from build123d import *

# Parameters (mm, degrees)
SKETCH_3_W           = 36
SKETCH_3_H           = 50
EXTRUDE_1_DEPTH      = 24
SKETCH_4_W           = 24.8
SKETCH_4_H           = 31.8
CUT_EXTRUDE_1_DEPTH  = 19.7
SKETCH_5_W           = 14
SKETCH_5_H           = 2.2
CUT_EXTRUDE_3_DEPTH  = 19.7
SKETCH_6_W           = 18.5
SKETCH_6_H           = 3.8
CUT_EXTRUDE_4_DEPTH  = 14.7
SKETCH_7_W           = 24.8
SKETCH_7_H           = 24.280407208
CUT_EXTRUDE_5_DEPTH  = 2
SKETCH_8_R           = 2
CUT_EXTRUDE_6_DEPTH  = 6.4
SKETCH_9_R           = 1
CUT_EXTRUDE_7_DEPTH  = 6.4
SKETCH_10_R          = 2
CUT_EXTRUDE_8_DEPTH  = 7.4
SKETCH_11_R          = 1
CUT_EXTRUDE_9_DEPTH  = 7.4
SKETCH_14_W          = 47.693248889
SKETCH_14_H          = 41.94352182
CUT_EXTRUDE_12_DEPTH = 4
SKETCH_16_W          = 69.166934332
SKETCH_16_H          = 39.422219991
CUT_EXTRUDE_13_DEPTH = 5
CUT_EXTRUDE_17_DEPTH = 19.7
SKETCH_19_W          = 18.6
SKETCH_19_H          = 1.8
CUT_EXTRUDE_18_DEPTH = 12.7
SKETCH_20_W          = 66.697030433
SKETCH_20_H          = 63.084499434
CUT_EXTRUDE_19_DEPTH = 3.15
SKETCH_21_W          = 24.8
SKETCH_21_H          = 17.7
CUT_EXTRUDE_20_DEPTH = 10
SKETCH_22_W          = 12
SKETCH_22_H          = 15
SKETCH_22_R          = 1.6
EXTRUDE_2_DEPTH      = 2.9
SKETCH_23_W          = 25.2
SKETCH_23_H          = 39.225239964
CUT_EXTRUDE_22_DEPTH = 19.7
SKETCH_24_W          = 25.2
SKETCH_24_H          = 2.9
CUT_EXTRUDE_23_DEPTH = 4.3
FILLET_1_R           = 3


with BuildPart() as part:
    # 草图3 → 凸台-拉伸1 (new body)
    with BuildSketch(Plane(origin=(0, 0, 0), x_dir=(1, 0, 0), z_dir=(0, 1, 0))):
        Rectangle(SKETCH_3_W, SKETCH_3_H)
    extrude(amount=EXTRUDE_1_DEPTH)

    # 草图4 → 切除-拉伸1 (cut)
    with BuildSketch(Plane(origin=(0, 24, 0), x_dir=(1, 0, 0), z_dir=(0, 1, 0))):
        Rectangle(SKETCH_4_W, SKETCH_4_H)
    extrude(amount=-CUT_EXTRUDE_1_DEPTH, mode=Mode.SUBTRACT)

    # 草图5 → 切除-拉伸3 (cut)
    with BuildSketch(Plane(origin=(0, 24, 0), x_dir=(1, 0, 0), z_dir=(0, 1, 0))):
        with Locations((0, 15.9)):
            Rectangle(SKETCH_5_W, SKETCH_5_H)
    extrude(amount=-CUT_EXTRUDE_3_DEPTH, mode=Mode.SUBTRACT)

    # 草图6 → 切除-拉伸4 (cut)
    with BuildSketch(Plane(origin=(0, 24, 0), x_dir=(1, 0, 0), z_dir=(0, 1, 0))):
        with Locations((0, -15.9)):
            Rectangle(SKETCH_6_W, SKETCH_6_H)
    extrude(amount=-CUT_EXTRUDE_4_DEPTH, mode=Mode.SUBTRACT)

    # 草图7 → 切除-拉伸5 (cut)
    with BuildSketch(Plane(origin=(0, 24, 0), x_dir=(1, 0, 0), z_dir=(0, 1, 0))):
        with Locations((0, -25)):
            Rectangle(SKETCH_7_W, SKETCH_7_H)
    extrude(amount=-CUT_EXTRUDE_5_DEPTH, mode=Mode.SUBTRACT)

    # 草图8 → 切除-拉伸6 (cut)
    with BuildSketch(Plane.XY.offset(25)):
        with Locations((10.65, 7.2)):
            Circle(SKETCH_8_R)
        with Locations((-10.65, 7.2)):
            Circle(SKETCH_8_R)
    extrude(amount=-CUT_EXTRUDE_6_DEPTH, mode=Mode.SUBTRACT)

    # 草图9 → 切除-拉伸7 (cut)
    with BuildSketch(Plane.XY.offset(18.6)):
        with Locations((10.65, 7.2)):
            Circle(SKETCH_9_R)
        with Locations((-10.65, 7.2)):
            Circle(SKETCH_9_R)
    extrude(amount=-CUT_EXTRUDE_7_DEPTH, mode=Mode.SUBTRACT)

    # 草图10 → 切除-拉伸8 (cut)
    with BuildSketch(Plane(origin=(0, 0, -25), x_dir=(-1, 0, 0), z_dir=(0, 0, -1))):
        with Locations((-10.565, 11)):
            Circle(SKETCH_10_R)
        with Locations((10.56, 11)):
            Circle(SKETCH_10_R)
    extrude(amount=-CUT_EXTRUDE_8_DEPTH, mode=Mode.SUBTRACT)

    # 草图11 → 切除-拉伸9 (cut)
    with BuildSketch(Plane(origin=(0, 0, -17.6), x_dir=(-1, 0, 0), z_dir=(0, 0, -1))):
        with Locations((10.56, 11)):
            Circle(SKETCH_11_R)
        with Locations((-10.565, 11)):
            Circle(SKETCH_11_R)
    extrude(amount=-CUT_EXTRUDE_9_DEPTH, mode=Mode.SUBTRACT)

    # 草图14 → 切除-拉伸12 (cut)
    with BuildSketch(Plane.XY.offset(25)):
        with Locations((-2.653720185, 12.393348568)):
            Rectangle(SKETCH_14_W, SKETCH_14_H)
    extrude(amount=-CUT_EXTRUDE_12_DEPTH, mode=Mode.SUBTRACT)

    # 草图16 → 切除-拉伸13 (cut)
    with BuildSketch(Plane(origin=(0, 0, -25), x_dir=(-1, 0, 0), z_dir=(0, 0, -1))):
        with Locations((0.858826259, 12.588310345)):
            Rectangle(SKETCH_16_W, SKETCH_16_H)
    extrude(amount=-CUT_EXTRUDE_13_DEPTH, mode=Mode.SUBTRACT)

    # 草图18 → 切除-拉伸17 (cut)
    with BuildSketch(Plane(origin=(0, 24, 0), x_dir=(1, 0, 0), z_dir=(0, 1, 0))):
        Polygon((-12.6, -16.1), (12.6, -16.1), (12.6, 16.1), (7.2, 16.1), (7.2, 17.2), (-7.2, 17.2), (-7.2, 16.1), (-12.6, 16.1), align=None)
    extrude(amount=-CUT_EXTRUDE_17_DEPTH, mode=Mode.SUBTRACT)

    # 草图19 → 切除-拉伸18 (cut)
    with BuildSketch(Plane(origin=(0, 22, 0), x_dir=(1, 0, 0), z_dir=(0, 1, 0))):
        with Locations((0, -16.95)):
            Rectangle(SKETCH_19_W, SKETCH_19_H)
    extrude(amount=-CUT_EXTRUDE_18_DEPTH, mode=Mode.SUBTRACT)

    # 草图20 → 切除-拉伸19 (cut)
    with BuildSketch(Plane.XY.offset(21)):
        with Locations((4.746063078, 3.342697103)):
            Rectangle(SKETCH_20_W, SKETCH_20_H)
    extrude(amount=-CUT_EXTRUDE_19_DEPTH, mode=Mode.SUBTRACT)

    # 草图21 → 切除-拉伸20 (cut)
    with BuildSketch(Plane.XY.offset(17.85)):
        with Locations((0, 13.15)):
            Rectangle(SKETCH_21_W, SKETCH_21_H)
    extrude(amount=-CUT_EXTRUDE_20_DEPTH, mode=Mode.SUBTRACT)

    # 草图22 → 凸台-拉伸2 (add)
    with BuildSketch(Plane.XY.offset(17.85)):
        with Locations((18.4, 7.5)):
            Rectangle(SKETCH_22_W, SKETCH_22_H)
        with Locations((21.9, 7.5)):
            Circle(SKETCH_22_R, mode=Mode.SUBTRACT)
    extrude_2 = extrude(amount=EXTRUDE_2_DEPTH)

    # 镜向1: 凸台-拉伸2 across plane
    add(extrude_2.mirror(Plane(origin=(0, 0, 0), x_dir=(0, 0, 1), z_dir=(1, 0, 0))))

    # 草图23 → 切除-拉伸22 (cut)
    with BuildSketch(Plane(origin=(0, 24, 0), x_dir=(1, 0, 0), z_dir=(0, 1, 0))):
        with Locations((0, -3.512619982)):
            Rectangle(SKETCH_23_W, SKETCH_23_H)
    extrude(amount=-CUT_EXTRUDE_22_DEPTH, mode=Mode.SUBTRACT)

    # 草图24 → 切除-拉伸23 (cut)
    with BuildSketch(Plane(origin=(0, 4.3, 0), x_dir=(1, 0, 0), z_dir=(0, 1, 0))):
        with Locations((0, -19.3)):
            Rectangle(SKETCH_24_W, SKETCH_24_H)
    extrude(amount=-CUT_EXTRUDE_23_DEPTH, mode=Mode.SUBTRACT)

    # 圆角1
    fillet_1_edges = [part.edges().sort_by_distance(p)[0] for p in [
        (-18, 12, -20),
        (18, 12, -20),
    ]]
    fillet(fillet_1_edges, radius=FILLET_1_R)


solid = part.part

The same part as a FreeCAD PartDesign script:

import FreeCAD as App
import Part
import Sketcher

V = App.Vector


def edges_at(feature, points):
    """Names of the edges that pass closest to the given points."""
    edges = feature.Shape.Edges
    near = lambda p: min(range(len(edges)), key=lambda i: edges[i].distToShape(Part.Vertex(*p))[0])
    return sorted({f"Edge{near(p) + 1}" for p in points})

doc = App.newDocument("Part")
params = doc.addObject("Spreadsheet::Sheet", "Params")
for row, (alias, value) in enumerate([
    ("sketch1_width", "36 mm"),
    ("sketch1_height", "50 mm"),
    ("pad1_length", "24 mm"),
    ("sketch2_width", "24.8 mm"),
    ("sketch2_height", "31.8 mm"),
    ("pocket1_length", "19.7 mm"),
    ("sketch3_width", "14 mm"),
    ("sketch3_height", "2.2 mm"),
    ("pocket2_length", "19.7 mm"),
    ("sketch4_width", "18.5 mm"),
    ("sketch4_height", "3.8 mm"),
    ("pocket3_length", "14.7 mm"),
    ("sketch5_width", "24.8 mm"),
    ("pocket4_length", "2 mm"),
    ("sketch6_diameter", "4 mm"),
    ("pocket5_length", "6.4 mm"),
    ("sketch7_diameter", "2 mm"),
    ("pocket6_length", "6.4 mm"),
    ("sketch8_diameter", "4 mm"),
    ("pocket7_length", "7.4 mm"),
    ("sketch9_diameter", "2 mm"),
    ("pocket8_length", "7.4 mm"),
    ("pocket9_length", "4 mm"),
    ("pocket10_length", "5 mm"),
    ("sketch12_width", "25.2 mm"),
    ("sketch12_width2", "5.4 mm"),
    ("sketch12_height", "32.2 mm"),
    ("sketch12_height2", "1.1 mm"),
    ("pocket11_length", "19.7 mm"),
    ("sketch13_width", "18.6 mm"),
    ("sketch13_height", "1.8 mm"),
    ("pocket12_length", "12.7 mm"),
    ("pocket13_length", "3.15 mm"),
    ("sketch15_width", "24.8 mm"),
    ("sketch15_height", "17.7 mm"),
    ("pocket14_length", "10 mm"),
    ("sketch16_diameter", "3.2 mm"),
    ("sketch16_width", "12 mm"),
    ("sketch16_height", "15 mm"),
    ("pad2_length", "2.9 mm"),
    ("sketch17_width", "25.2 mm"),
    ("pocket15_length", "19.7 mm"),
    ("sketch18_width", "25.2 mm"),
    ("sketch18_height", "2.9 mm"),
    ("pocket16_length", "4.3 mm"),
    ("fillet_radius", "3 mm"),
], start=1):
    params.set(f"A{row}", alias)
    params.set(f"B{row}", "=" + value)
    params.setAlias(f"B{row}", alias)

body = doc.addObject("PartDesign::Body", "Body")

# Sketch on XZ plane
sketch1 = doc.addObject("Sketcher::SketchObject", "Sketch")
body.addObject(sketch1)
sketch1.AttachmentSupport = (doc.XZ_Plane, [""])
sketch1.MapMode = "FlatFace"
sketch1.addGeometry([
    Part.LineSegment(V(-18, -25, 0), V(-18, 25, 0)),
    Part.LineSegment(V(-18, 25, 0), V(18, 25, 0)),
    Part.LineSegment(V(18, 25, 0), V(18, -25, 0)),
    Part.LineSegment(V(18, -25, 0), V(-18, -25, 0)),
], False)
sketch1.addConstraint([
    Sketcher.Constraint("Coincident", 0, 2, 1, 1),
    Sketcher.Constraint("Coincident", 1, 2, 2, 1),
    Sketcher.Constraint("Coincident", 2, 2, 3, 1),
    Sketcher.Constraint("Coincident", 3, 2, 0, 1),
    Sketcher.Constraint("Vertical", 0),
    Sketcher.Constraint("Horizontal", 1),
    Sketcher.Constraint("Vertical", 2),
    Sketcher.Constraint("Horizontal", 3),
    Sketcher.Constraint("Symmetric", 0, 2, 2, 2, -1, 1),
    Sketcher.Constraint("DistanceX", 1, 1, 1, 2, 36.0),
    Sketcher.Constraint("DistanceY", 0, 1, 0, 2, 50.0),
])
sketch1.setExpression("Constraints[9]", "Params.sketch1_width")
sketch1.setExpression("Constraints[10]", "Params.sketch1_height")
pad1 = doc.addObject("PartDesign::Pad", "Pad")
body.addObject(pad1)
pad1.Profile = sketch1
pad1.setExpression("Length", "Params.pad1_length")
pad1.Reversed = True

# Sketch on XZ plane
sketch2 = doc.addObject("Sketcher::SketchObject", "Sketch001")
body.addObject(sketch2)
sketch2.AttachmentSupport = (doc.XZ_Plane, [""])
sketch2.MapMode = "FlatFace"
sketch2.AttachmentOffset = App.Placement(V(0, 0, -24), App.Rotation())
sketch2.addGeometry([
    Part.LineSegment(V(-12.4, -15.9, 0), V(-12.4, 15.9, 0)),
    Part.LineSegment(V(-12.4, 15.9, 0), V(12.4, 15.9, 0)),
    Part.LineSegment(V(12.4, 15.9, 0), V(12.4, -15.9, 0)),
    Part.LineSegment(V(12.4, -15.9, 0), V(-12.4, -15.9, 0)),
], False)
sketch2.addConstraint([
    Sketcher.Constraint("Coincident", 0, 2, 1, 1),
    Sketcher.Constraint("Coincident", 1, 2, 2, 1),
    Sketcher.Constraint("Coincident", 2, 2, 3, 1),
    Sketcher.Constraint("Coincident", 3, 2, 0, 1),
    Sketcher.Constraint("Vertical", 0),
    Sketcher.Constraint("Horizontal", 1),
    Sketcher.Constraint("Vertical", 2),
    Sketcher.Constraint("Horizontal", 3),
    Sketcher.Constraint("Symmetric", 0, 2, 2, 2, -1, 1),
    Sketcher.Constraint("DistanceX", 1, 1, 1, 2, 24.8),
    Sketcher.Constraint("DistanceY", 0, 1, 0, 2, 31.8),
])
sketch2.setExpression("Constraints[9]", "Params.sketch2_width")
sketch2.setExpression("Constraints[10]", "Params.sketch2_height")
pocket1 = doc.addObject("PartDesign::Pocket", "Pocket")
body.addObject(pocket1)
pocket1.Profile = sketch2
pocket1.setExpression("Length", "Params.pocket1_length")
pocket1.Reversed = True

# Sketch on XZ plane
sketch3 = doc.addObject("Sketcher::SketchObject", "Sketch002")
body.addObject(sketch3)
sketch3.AttachmentSupport = (doc.XZ_Plane, [""])
sketch3.MapMode = "FlatFace"
sketch3.AttachmentOffset = App.Placement(V(0, 0, -24), App.Rotation())
sketch3.addGeometry([
    Part.LineSegment(V(-7, -17, 0), V(-7, -14.8, 0)),
    Part.LineSegment(V(-7, -14.8, 0), V(7, -14.8, 0)),
    Part.LineSegment(V(7, -14.8, 0), V(7, -17, 0)),
    Part.LineSegment(V(7, -17, 0), V(-7, -17, 0)),
], False)
sketch3.addConstraint([
    Sketcher.Constraint("Coincident", 0, 2, 1, 1),
    Sketcher.Constraint("Coincident", 1, 2, 2, 1),
    Sketcher.Constraint("Coincident", 2, 2, 3, 1),
    Sketcher.Constraint("Coincident", 3, 2, 0, 1),
    Sketcher.Constraint("Vertical", 0),
    Sketcher.Constraint("Horizontal", 1),
    Sketcher.Constraint("Vertical", 2),
    Sketcher.Constraint("Horizontal", 3),
    Sketcher.Constraint("DistanceX", 1, 1, 1, 2, 14.0),
    Sketcher.Constraint("DistanceY", 0, 1, 0, 2, 2.2),
    Sketcher.Constraint("DistanceX", 0, 2, -1, 1, 7.0),
    Sketcher.Constraint("DistanceY", 2, 2, -1, 1, 17.0),
])
sketch3.setExpression("Constraints[8]", "Params.sketch3_width")
sketch3.setExpression("Constraints[9]", "Params.sketch3_height")
pocket2 = doc.addObject("PartDesign::Pocket", "Pocket001")
body.addObject(pocket2)
pocket2.Profile = sketch3
pocket2.setExpression("Length", "Params.pocket2_length")
pocket2.Reversed = True

# Sketch on XZ plane
sketch4 = doc.addObject("Sketcher::SketchObject", "Sketch003")
body.addObject(sketch4)
sketch4.AttachmentSupport = (doc.XZ_Plane, [""])
sketch4.MapMode = "FlatFace"
sketch4.AttachmentOffset = App.Placement(V(0, 0, -24), App.Rotation())
sketch4.addGeometry([
    Part.LineSegment(V(-9.25, 14, 0), V(-9.25, 17.8, 0)),
    Part.LineSegment(V(-9.25, 17.8, 0), V(9.25, 17.8, 0)),
    Part.LineSegment(V(9.25, 17.8, 0), V(9.25, 14, 0)),
    Part.LineSegment(V(9.25, 14, 0), V(-9.25, 14, 0)),
], False)
sketch4.addConstraint([
    Sketcher.Constraint("Coincident", 0, 2, 1, 1),
    Sketcher.Constraint("Coincident", 1, 2, 2, 1),
    Sketcher.Constraint("Coincident", 2, 2, 3, 1),
    Sketcher.Constraint("Coincident", 3, 2, 0, 1),
    Sketcher.Constraint("Vertical", 0),
    Sketcher.Constraint("Horizontal", 1),
    Sketcher.Constraint("Vertical", 2),
    Sketcher.Constraint("Horizontal", 3),
    Sketcher.Constraint("DistanceX", 1, 1, 1, 2, 18.5),
    Sketcher.Constraint("DistanceY", 0, 1, 0, 2, 3.8),
    Sketcher.Constraint("DistanceY", -1, 1, 2, 2, 14.0),
    Sketcher.Constraint("DistanceX", 0, 2, -1, 1, 9.25),
])
sketch4.setExpression("Constraints[8]", "Params.sketch4_width")
sketch4.setExpression("Constraints[9]", "Params.sketch4_height")
pocket3 = doc.addObject("PartDesign::Pocket", "Pocket002")
body.addObject(pocket3)
pocket3.Profile = sketch4
pocket3.setExpression("Length", "Params.pocket3_length")
pocket3.Reversed = True

# Sketch on XZ plane
sketch5 = doc.addObject("Sketcher::SketchObject", "Sketch004")
body.addObject(sketch5)
sketch5.AttachmentSupport = (doc.XZ_Plane, [""])
sketch5.MapMode = "FlatFace"
sketch5.AttachmentOffset = App.Placement(V(0, 0, -24), App.Rotation())
sketch5.addGeometry([
    Part.LineSegment(V(-12.4, 12.859796, 0), V(-12.4, 37.140204, 0)),
    Part.LineSegment(V(-12.4, 37.140204, 0), V(12.4, 37.140204, 0)),
    Part.LineSegment(V(12.4, 37.140204, 0), V(12.4, 12.859796, 0)),
    Part.LineSegment(V(12.4, 12.859796, 0), V(-12.4, 12.859796, 0)),
], False)
sketch5.addConstraint([
    Sketcher.Constraint("Coincident", 0, 2, 1, 1),
    Sketcher.Constraint("Coincident", 1, 2, 2, 1),
    Sketcher.Constraint("Coincident", 2, 2, 3, 1),
    Sketcher.Constraint("Coincident", 3, 2, 0, 1),
    Sketcher.Constraint("Vertical", 0),
    Sketcher.Constraint("Horizontal", 1),
    Sketcher.Constraint("Vertical", 2),
    Sketcher.Constraint("Horizontal", 3),
    Sketcher.Constraint("DistanceX", 1, 1, 1, 2, 24.8),
    Sketcher.Constraint("DistanceX", 0, 2, -1, 1, 12.4),
    Sketcher.Constraint("DistanceY", 0, 1, 0, 2, 24.280407),
    Sketcher.Constraint("DistanceY", -1, 1, 0, 2, 37.140204),
])
sketch5.setExpression("Constraints[8]", "Params.sketch5_width")
pocket4 = doc.addObject("PartDesign::Pocket", "Pocket003")
body.addObject(pocket4)
pocket4.Profile = sketch5
pocket4.setExpression("Length", "Params.pocket4_length")
pocket4.Reversed = True

# Sketch on XY plane
sketch6 = doc.addObject("Sketcher::SketchObject", "Sketch005")
body.addObject(sketch6)
sketch6.AttachmentSupport = (doc.XY_Plane, [""])
sketch6.MapMode = "FlatFace"
sketch6.AttachmentOffset = App.Placement(V(0, 0, 25), App.Rotation())
sketch6.addGeometry([
    Part.Circle(V(10.65, 7.2, 0), V(0, 0, 1), 2),
    Part.Circle(V(-10.65, 7.2, 0), V(0, 0, 1), 2),
], False)
sketch6.addConstraint([
    Sketcher.Constraint("Equal", 0, 1),
    Sketcher.Constraint("Symmetric", 0, 3, 1, 3, -2),
    Sketcher.Constraint("Diameter", 0, 4.0),
    Sketcher.Constraint("DistanceY", -1, 1, 0, 3, 7.2),
    Sketcher.Constraint("DistanceX", 1, 3, 0, 3, 21.3),
])
sketch6.setExpression("Constraints[2]", "Params.sketch6_diameter")
pocket5 = doc.addObject("PartDesign::Pocket", "Pocket004")
body.addObject(pocket5)
pocket5.Profile = sketch6
pocket5.setExpression("Length", "Params.pocket5_length")

# Sketch on XY plane
sketch7 = doc.addObject("Sketcher::SketchObject", "Sketch006")
body.addObject(sketch7)
sketch7.AttachmentSupport = (doc.XY_Plane, [""])
sketch7.MapMode = "FlatFace"
sketch7.AttachmentOffset = App.Placement(V(0, 0, 18.6), App.Rotation())
sketch7.addGeometry([
    Part.Circle(V(10.65, 7.2, 0), V(0, 0, 1), 1),
    Part.Circle(V(-10.65, 7.2, 0), V(0, 0, 1), 1),
], False)
sketch7.addConstraint([
    Sketcher.Constraint("Equal", 0, 1),
    Sketcher.Constraint("Symmetric", 0, 3, 1, 3, -2),
    Sketcher.Constraint("Diameter", 0, 2.0),
    Sketcher.Constraint("DistanceY", -1, 1, 0, 3, 7.2),
    Sketcher.Constraint("DistanceX", 1, 3, 0, 3, 21.3),
])
sketch7.setExpression("Constraints[2]", "Params.sketch7_diameter")
pocket6 = doc.addObject("PartDesign::Pocket", "Pocket005")
body.addObject(pocket6)
pocket6.Profile = sketch7
pocket6.setExpression("Length", "Params.pocket6_length")

# Sketch on XY plane
sketch8 = doc.addObject("Sketcher::SketchObject", "Sketch007")
body.addObject(sketch8)
sketch8.AttachmentSupport = (doc.XY_Plane, [""])
sketch8.MapMode = "FlatFace"
sketch8.AttachmentOffset = App.Placement(V(0, 0, -25), App.Rotation())
sketch8.addGeometry([
    Part.Circle(V(10.565, 11, 0), V(0, 0, 1), 2),
    Part.Circle(V(-10.56, 11, 0), V(0, 0, 1), 2),
], False)
sketch8.addConstraint([
    Sketcher.Constraint("Equal", 0, 1),
    Sketcher.Constraint("Horizontal", 0, 3, 1, 3),
    Sketcher.Constraint("Diameter", 0, 4.0),
    Sketcher.Constraint("DistanceY", -1, 1, 0, 3, 11.0),
    Sketcher.Constraint("DistanceX", 1, 3, -1, 1, 10.56),
    Sketcher.Constraint("DistanceX", -1, 1, 0, 3, 10.565),
])
sketch8.setExpression("Constraints[2]", "Params.sketch8_diameter")
pocket7 = doc.addObject("PartDesign::Pocket", "Pocket006")
body.addObject(pocket7)
pocket7.Profile = sketch8
pocket7.setExpression("Length", "Params.pocket7_length")
pocket7.Reversed = True

# Sketch on XY plane
sketch9 = doc.addObject("Sketcher::SketchObject", "Sketch008")
body.addObject(sketch9)
sketch9.AttachmentSupport = (doc.XY_Plane, [""])
sketch9.MapMode = "FlatFace"
sketch9.AttachmentOffset = App.Placement(V(0, 0, -17.6), App.Rotation())
sketch9.addGeometry([
    Part.Circle(V(-10.56, 11, 0), V(0, 0, 1), 1),
    Part.Circle(V(10.565, 11, 0), V(0, 0, 1), 1),
], False)
sketch9.addConstraint([
    Sketcher.Constraint("Equal", 0, 1),
    Sketcher.Constraint("Horizontal", 0, 3, 1, 3),
    Sketcher.Constraint("Diameter", 0, 2.0),
    Sketcher.Constraint("DistanceY", -1, 1, 0, 3, 11.0),
    Sketcher.Constraint("DistanceX", 0, 3, -1, 1, 10.56),
    Sketcher.Constraint("DistanceX", -1, 1, 1, 3, 10.565),
])
sketch9.setExpression("Constraints[2]", "Params.sketch9_diameter")
pocket8 = doc.addObject("PartDesign::Pocket", "Pocket007")
body.addObject(pocket8)
pocket8.Profile = sketch9
pocket8.setExpression("Length", "Params.pocket8_length")
pocket8.Reversed = True

# Sketch on XY plane
sketch10 = doc.addObject("Sketcher::SketchObject", "Sketch009")
body.addObject(sketch10)
sketch10.AttachmentSupport = (doc.XY_Plane, [""])
sketch10.MapMode = "FlatFace"
sketch10.AttachmentOffset = App.Placement(V(0, 0, 25), App.Rotation())
sketch10.addGeometry([
    Part.LineSegment(V(-26.500345, 33.365109, 0), V(-26.500345, -8.578412, 0)),
    Part.LineSegment(V(-26.500345, -8.578412, 0), V(21.192904, -8.578412, 0)),
    Part.LineSegment(V(21.192904, -8.578412, 0), V(21.192904, 33.365109, 0)),
    Part.LineSegment(V(21.192904, 33.365109, 0), V(-26.500345, 33.365109, 0)),
], False)
sketch10.addConstraint([
    Sketcher.Constraint("Coincident", 0, 2, 1, 1),
    Sketcher.Constraint("Coincident", 1, 2, 2, 1),
    Sketcher.Constraint("Coincident", 2, 2, 3, 1),
    Sketcher.Constraint("Coincident", 3, 2, 0, 1),
    Sketcher.Constraint("Vertical", 0),
    Sketcher.Constraint("Horizontal", 1),
    Sketcher.Constraint("Vertical", 2),
    Sketcher.Constraint("Horizontal", 3),
    Sketcher.Constraint("DistanceX", 1, 1, 1, 2, 47.693249),
    Sketcher.Constraint("DistanceY", 0, 2, 0, 1, 41.943522),
    Sketcher.Constraint("DistanceY", -1, 1, 2, 2, 33.365109),
    Sketcher.Constraint("DistanceX", 0, 2, -1, 1, 26.500345),
])
pocket9 = doc.addObject("PartDesign::Pocket", "Pocket008")
body.addObject(pocket9)
pocket9.Profile = sketch10
pocket9.setExpression("Length", "Params.pocket9_length")

# Sketch on XY plane
sketch11 = doc.addObject("Sketcher::SketchObject", "Sketch010")
body.addObject(sketch11)
sketch11.AttachmentSupport = (doc.XY_Plane, [""])
sketch11.MapMode = "FlatFace"
sketch11.AttachmentOffset = App.Placement(V(0, 0, -25), App.Rotation())
sketch11.addGeometry([
    Part.LineSegment(V(33.724641, 32.29942, 0), V(33.724641, -7.1228, 0)),
    Part.LineSegment(V(33.724641, -7.1228, 0), V(-35.442293, -7.1228, 0)),
    Part.LineSegment(V(-35.442293, -7.1228, 0), V(-35.442293, 32.29942, 0)),
    Part.LineSegment(V(-35.442293, 32.29942, 0), V(33.724641, 32.29942, 0)),
], False)
sketch11.addConstraint([
    Sketcher.Constraint("Coincident", 0, 2, 1, 1),
    Sketcher.Constraint("Coincident", 1, 2, 2, 1),
    Sketcher.Constraint("Coincident", 2, 2, 3, 1),
    Sketcher.Constraint("Coincident", 3, 2, 0, 1),
    Sketcher.Constraint("Vertical", 0),
    Sketcher.Constraint("Horizontal", 1),
    Sketcher.Constraint("Vertical", 2),
    Sketcher.Constraint("Horizontal", 3),
    Sketcher.Constraint("DistanceY", 0, 2, 0, 1, 39.42222),
    Sketcher.Constraint("DistanceY", 0, 2, -1, 1, 7.1228),
    Sketcher.Constraint("DistanceX", 1, 2, 1, 1, 69.166934),
    Sketcher.Constraint("DistanceX", -1, 1, 0, 2, 33.724641),
])
pocket10 = doc.addObject("PartDesign::Pocket", "Pocket009")
body.addObject(pocket10)
pocket10.Profile = sketch11
pocket10.setExpression("Length", "Params.pocket10_length")
pocket10.Reversed = True

# Sketch on XZ plane
sketch12 = doc.addObject("Sketcher::SketchObject", "Sketch011")
body.addObject(sketch12)
sketch12.AttachmentSupport = (doc.XZ_Plane, [""])
sketch12.MapMode = "FlatFace"
sketch12.AttachmentOffset = App.Placement(V(0, 0, -24), App.Rotation())
sketch12.addGeometry([
    Part.LineSegment(V(-12.6, 16.1, 0), V(12.6, 16.1, 0)),  # 0
    Part.LineSegment(V(12.6, 16.1, 0), V(12.6, -16.1, 0)),  # 1
    Part.LineSegment(V(12.6, -16.1, 0), V(7.2, -16.1, 0)),  # 2
    Part.LineSegment(V(7.2, -16.1, 0), V(7.2, -17.2, 0)),  # 3
    Part.LineSegment(V(7.2, -17.2, 0), V(-7.2, -17.2, 0)),  # 4
    Part.LineSegment(V(-7.2, -17.2, 0), V(-7.2, -16.1, 0)),  # 5
    Part.LineSegment(V(-7.2, -16.1, 0), V(-12.6, -16.1, 0)),  # 6
    Part.LineSegment(V(-12.6, -16.1, 0), V(-12.6, 16.1, 0)),  # 7
], False)
sketch12.addConstraint([
    Sketcher.Constraint("Coincident", 0, 2, 1, 1),
    Sketcher.Constraint("Coincident", 1, 2, 2, 1),
    Sketcher.Constraint("Coincident", 2, 2, 3, 1),
    Sketcher.Constraint("Coincident", 3, 2, 4, 1),
    Sketcher.Constraint("Coincident", 4, 2, 5, 1),
    Sketcher.Constraint("Coincident", 5, 2, 6, 1),
    Sketcher.Constraint("Coincident", 6, 2, 7, 1),
    Sketcher.Constraint("Coincident", 7, 2, 0, 1),
    Sketcher.Constraint("Horizontal", 0),
    Sketcher.Constraint("Vertical", 1),
    Sketcher.Constraint("Horizontal", 2),
    Sketcher.Constraint("Vertical", 3),
    Sketcher.Constraint("Horizontal", 4),
    Sketcher.Constraint("Vertical", 5),
    Sketcher.Constraint("Horizontal", 6),
    Sketcher.Constraint("Vertical", 7),
    Sketcher.Constraint("Symmetric", 0, 2, 6, 2, -1, 1),
    Sketcher.Constraint("Symmetric", 2, 2, 5, 2, -2),
    Sketcher.Constraint("DistanceX", 0, 1, 0, 2, 25.2),
    Sketcher.Constraint("DistanceX", 2, 2, 2, 1, 5.4),
    Sketcher.Constraint("DistanceY", 1, 2, 1, 1, 32.2),
    Sketcher.Constraint("DistanceY", 3, 2, 3, 1, 1.1),
])
sketch12.setExpression("Constraints[18]", "Params.sketch12_width")
sketch12.setExpression("Constraints[19]", "Params.sketch12_width2")
sketch12.setExpression("Constraints[20]", "Params.sketch12_height")
sketch12.setExpression("Constraints[21]", "Params.sketch12_height2")
pocket11 = doc.addObject("PartDesign::Pocket", "Pocket010")
body.addObject(pocket11)
pocket11.Profile = sketch12
pocket11.setExpression("Length", "Params.pocket11_length")
pocket11.Reversed = True

# Sketch on XZ plane
sketch13 = doc.addObject("Sketcher::SketchObject", "Sketch012")
body.addObject(sketch13)
sketch13.AttachmentSupport = (doc.XZ_Plane, [""])
sketch13.MapMode = "FlatFace"
sketch13.AttachmentOffset = App.Placement(V(0, 0, -22), App.Rotation())
sketch13.addGeometry([
    Part.LineSegment(V(-9.3, 16.05, 0), V(-9.3, 17.85, 0)),
    Part.LineSegment(V(-9.3, 17.85, 0), V(9.3, 17.85, 0)),
    Part.LineSegment(V(9.3, 17.85, 0), V(9.3, 16.05, 0)),
    Part.LineSegment(V(9.3, 16.05, 0), V(-9.3, 16.05, 0)),
], False)
sketch13.addConstraint([
    Sketcher.Constraint("Coincident", 0, 2, 1, 1),
    Sketcher.Constraint("Coincident", 1, 2, 2, 1),
    Sketcher.Constraint("Coincident", 2, 2, 3, 1),
    Sketcher.Constraint("Coincident", 3, 2, 0, 1),
    Sketcher.Constraint("Vertical", 0),
    Sketcher.Constraint("Horizontal", 1),
    Sketcher.Constraint("Vertical", 2),
    Sketcher.Constraint("Horizontal", 3),
    Sketcher.Constraint("DistanceX", 1, 1, 1, 2, 18.6),
    Sketcher.Constraint("DistanceY", 0, 1, 0, 2, 1.8),
    Sketcher.Constraint("DistanceX", 0, 2, -1, 1, 9.3),
    Sketcher.Constraint("DistanceY", -1, 1, 0, 2, 17.85),
])
sketch13.setExpression("Constraints[8]", "Params.sketch13_width")
sketch13.setExpression("Constraints[9]", "Params.sketch13_height")
pocket12 = doc.addObject("PartDesign::Pocket", "Pocket011")
body.addObject(pocket12)
pocket12.Profile = sketch13
pocket12.setExpression("Length", "Params.pocket12_length")
pocket12.Reversed = True

# Sketch on XY plane
sketch14 = doc.addObject("Sketcher::SketchObject", "Sketch013")
body.addObject(sketch14)
sketch14.AttachmentSupport = (doc.XY_Plane, [""])
sketch14.MapMode = "FlatFace"
sketch14.AttachmentOffset = App.Placement(V(0, 0, 21), App.Rotation())
sketch14.addGeometry([
    Part.LineSegment(V(-28.602452, 34.884947, 0), V(-28.602452, -28.199553, 0)),
    Part.LineSegment(V(-28.602452, -28.199553, 0), V(38.094578, -28.199553, 0)),
    Part.LineSegment(V(38.094578, -28.199553, 0), V(38.094578, 34.884947, 0)),
    Part.LineSegment(V(38.094578, 34.884947, 0), V(-28.602452, 34.884947, 0)),
], False)
sketch14.addConstraint([
    Sketcher.Constraint("Coincident", 0, 2, 1, 1),
    Sketcher.Constraint("Coincident", 1, 2, 2, 1),
    Sketcher.Constraint("Coincident", 2, 2, 3, 1),
    Sketcher.Constraint("Coincident", 3, 2, 0, 1),
    Sketcher.Constraint("Vertical", 0),
    Sketcher.Constraint("Horizontal", 1),
    Sketcher.Constraint("Vertical", 2),
    Sketcher.Constraint("Horizontal", 3),
    Sketcher.Constraint("DistanceY", 0, 2, 0, 1, 63.084499),
    Sketcher.Constraint("DistanceX", 1, 1, 1, 2, 66.69703),
    Sketcher.Constraint("DistanceX", -1, 1, 1, 2, 38.094578),
    Sketcher.Constraint("DistanceY", 0, 2, -1, 1, 28.199553),
])
pocket13 = doc.addObject("PartDesign::Pocket", "Pocket012")
body.addObject(pocket13)
pocket13.Profile = sketch14
pocket13.setExpression("Length", "Params.pocket13_length")

# Sketch on XY plane
sketch15 = doc.addObject("Sketcher::SketchObject", "Sketch014")
body.addObject(sketch15)
sketch15.AttachmentSupport = (doc.XY_Plane, [""])
sketch15.MapMode = "FlatFace"
sketch15.AttachmentOffset = App.Placement(V(0, 0, 17.85), App.Rotation())
sketch15.addGeometry([
    Part.LineSegment(V(-12.4, 22, 0), V(-12.4, 4.3, 0)),
    Part.LineSegment(V(-12.4, 4.3, 0), V(12.4, 4.3, 0)),
    Part.LineSegment(V(12.4, 4.3, 0), V(12.4, 22, 0)),
    Part.LineSegment(V(12.4, 22, 0), V(-12.4, 22, 0)),
], False)
sketch15.addConstraint([
    Sketcher.Constraint("Coincident", 0, 2, 1, 1),
    Sketcher.Constraint("Coincident", 1, 2, 2, 1),
    Sketcher.Constraint("Coincident", 2, 2, 3, 1),
    Sketcher.Constraint("Coincident", 3, 2, 0, 1),
    Sketcher.Constraint("Vertical", 0),
    Sketcher.Constraint("Horizontal", 1),
    Sketcher.Constraint("Vertical", 2),
    Sketcher.Constraint("Horizontal", 3),
    Sketcher.Constraint("DistanceX", 1, 1, 1, 2, 24.8),
    Sketcher.Constraint("DistanceY", 0, 2, 0, 1, 17.7),
    Sketcher.Constraint("DistanceY", -1, 1, 2, 2, 22.0),
    Sketcher.Constraint("DistanceX", 0, 2, -1, 1, 12.4),
])
sketch15.setExpression("Constraints[8]", "Params.sketch15_width")
sketch15.setExpression("Constraints[9]", "Params.sketch15_height")
pocket14 = doc.addObject("PartDesign::Pocket", "Pocket013")
body.addObject(pocket14)
pocket14.Profile = sketch15
pocket14.setExpression("Length", "Params.pocket14_length")

# Sketch on XY plane
sketch16 = doc.addObject("Sketcher::SketchObject", "Sketch015")
body.addObject(sketch16)
sketch16.AttachmentSupport = (doc.XY_Plane, [""])
sketch16.MapMode = "FlatFace"
sketch16.AttachmentOffset = App.Placement(V(0, 0, 17.85), App.Rotation())
sketch16.addGeometry([
    Part.LineSegment(V(12.4, 15, 0), V(12.4, 0, 0)),  # 0
    Part.LineSegment(V(12.4, 0, 0), V(24.4, 0, 0)),  # 1
    Part.LineSegment(V(24.4, 0, 0), V(24.4, 15, 0)),  # 2
    Part.LineSegment(V(24.4, 15, 0), V(12.4, 15, 0)),  # 3
    Part.Circle(V(21.9, 7.5, 0), V(0, 0, 1), 1.6),  # 4
], False)
sketch16.addConstraint([
    Sketcher.Constraint("Coincident", 0, 2, 1, 1),
    Sketcher.Constraint("Coincident", 1, 2, 2, 1),
    Sketcher.Constraint("Coincident", 2, 2, 3, 1),
    Sketcher.Constraint("Coincident", 3, 2, 0, 1),
    Sketcher.Constraint("Vertical", 0),
    Sketcher.Constraint("Horizontal", 1),
    Sketcher.Constraint("Vertical", 2),
    Sketcher.Constraint("Horizontal", 3),
    Sketcher.Constraint("PointOnObject", 0, 2, -1),
    Sketcher.Constraint("Diameter", 4, 3.2),
    Sketcher.Constraint("DistanceX", 1, 1, 1, 2, 12.0),
    Sketcher.Constraint("DistanceY", 0, 2, 0, 1, 15.0),
    Sketcher.Constraint("DistanceX", -1, 1, 4, 3, 21.9),
    Sketcher.Constraint("DistanceY", -1, 1, 4, 3, 7.5),
    Sketcher.Constraint("DistanceX", -1, 1, 0, 2, 12.4),
])
sketch16.setExpression("Constraints[9]", "Params.sketch16_diameter")
sketch16.setExpression("Constraints[10]", "Params.sketch16_width")
sketch16.setExpression("Constraints[11]", "Params.sketch16_height")
pad2 = doc.addObject("PartDesign::Pad", "Pad001")
body.addObject(pad2)
pad2.Profile = sketch16
pad2.setExpression("Length", "Params.pad2_length")
doc.recompute()

mirrored = doc.addObject("PartDesign::Mirrored", "Mirrored")
body.addObject(mirrored)
mirrored.Originals = [pad2]
mirrored.MirrorPlane = (doc.YZ_Plane, [""])
body.Tip = mirrored

# Sketch on XZ plane
sketch17 = doc.addObject("Sketcher::SketchObject", "Sketch016")
body.addObject(sketch17)
sketch17.AttachmentSupport = (doc.XZ_Plane, [""])
sketch17.MapMode = "FlatFace"
sketch17.AttachmentOffset = App.Placement(V(0, 0, -24), App.Rotation())
sketch17.addGeometry([
    Part.LineSegment(V(-12.6, -16.1, 0), V(-12.6, 23.12524, 0)),
    Part.LineSegment(V(-12.6, 23.12524, 0), V(12.6, 23.12524, 0)),
    Part.LineSegment(V(12.6, 23.12524, 0), V(12.6, -16.1, 0)),
    Part.LineSegment(V(12.6, -16.1, 0), V(-12.6, -16.1, 0)),
], False)
sketch17.addConstraint([
    Sketcher.Constraint("Coincident", 0, 2, 1, 1),
    Sketcher.Constraint("Coincident", 1, 2, 2, 1),
    Sketcher.Constraint("Coincident", 2, 2, 3, 1),
    Sketcher.Constraint("Coincident", 3, 2, 0, 1),
    Sketcher.Constraint("Vertical", 0),
    Sketcher.Constraint("Horizontal", 1),
    Sketcher.Constraint("Vertical", 2),
    Sketcher.Constraint("Horizontal", 3),
    Sketcher.Constraint("DistanceX", 1, 1, 1, 2, 25.2),
    Sketcher.Constraint("DistanceX", 0, 2, -1, 1, 12.6),
    Sketcher.Constraint("DistanceY", 2, 2, -1, 1, 16.1),
    Sketcher.Constraint("DistanceY", 0, 1, 0, 2, 39.22524),
])
sketch17.setExpression("Constraints[8]", "Params.sketch17_width")
pocket15 = doc.addObject("PartDesign::Pocket", "Pocket014")
body.addObject(pocket15)
pocket15.Profile = sketch17
pocket15.setExpression("Length", "Params.pocket15_length")
pocket15.Reversed = True

# Sketch on XZ plane
sketch18 = doc.addObject("Sketcher::SketchObject", "Sketch017")
body.addObject(sketch18)
sketch18.AttachmentSupport = (doc.XZ_Plane, [""])
sketch18.MapMode = "FlatFace"
sketch18.AttachmentOffset = App.Placement(V(0, 0, -4.3), App.Rotation())
sketch18.addGeometry([
    Part.LineSegment(V(-12.6, 17.85, 0), V(-12.6, 20.75, 0)),
    Part.LineSegment(V(-12.6, 20.75, 0), V(12.6, 20.75, 0)),
    Part.LineSegment(V(12.6, 20.75, 0), V(12.6, 17.85, 0)),
    Part.LineSegment(V(12.6, 17.85, 0), V(-12.6, 17.85, 0)),
], False)
sketch18.addConstraint([
    Sketcher.Constraint("Coincident", 0, 2, 1, 1),
    Sketcher.Constraint("Coincident", 1, 2, 2, 1),
    Sketcher.Constraint("Coincident", 2, 2, 3, 1),
    Sketcher.Constraint("Coincident", 3, 2, 0, 1),
    Sketcher.Constraint("Vertical", 0),
    Sketcher.Constraint("Horizontal", 1),
    Sketcher.Constraint("Vertical", 2),
    Sketcher.Constraint("Horizontal", 3),
    Sketcher.Constraint("DistanceX", 1, 1, 1, 2, 25.2),
    Sketcher.Constraint("DistanceY", 0, 1, 0, 2, 2.9),
    Sketcher.Constraint("DistanceX", 0, 2, -1, 1, 12.6),
    Sketcher.Constraint("DistanceY", -1, 1, 0, 2, 20.75),
])
sketch18.setExpression("Constraints[8]", "Params.sketch18_width")
sketch18.setExpression("Constraints[9]", "Params.sketch18_height")
pocket16 = doc.addObject("PartDesign::Pocket", "Pocket015")
body.addObject(pocket16)
pocket16.Profile = sketch18
pocket16.setExpression("Length", "Params.pocket16_length")
pocket16.Reversed = True
doc.recompute()

fillet = doc.addObject("PartDesign::Fillet", "Fillet")
body.addObject(fillet)
fillet.Base = (pocket16, edges_at(pocket16, [(-18, 12, -20), (18, 12, -20)]))
fillet.setExpression("Radius", "Params.fillet_radius")

doc.recompute()
